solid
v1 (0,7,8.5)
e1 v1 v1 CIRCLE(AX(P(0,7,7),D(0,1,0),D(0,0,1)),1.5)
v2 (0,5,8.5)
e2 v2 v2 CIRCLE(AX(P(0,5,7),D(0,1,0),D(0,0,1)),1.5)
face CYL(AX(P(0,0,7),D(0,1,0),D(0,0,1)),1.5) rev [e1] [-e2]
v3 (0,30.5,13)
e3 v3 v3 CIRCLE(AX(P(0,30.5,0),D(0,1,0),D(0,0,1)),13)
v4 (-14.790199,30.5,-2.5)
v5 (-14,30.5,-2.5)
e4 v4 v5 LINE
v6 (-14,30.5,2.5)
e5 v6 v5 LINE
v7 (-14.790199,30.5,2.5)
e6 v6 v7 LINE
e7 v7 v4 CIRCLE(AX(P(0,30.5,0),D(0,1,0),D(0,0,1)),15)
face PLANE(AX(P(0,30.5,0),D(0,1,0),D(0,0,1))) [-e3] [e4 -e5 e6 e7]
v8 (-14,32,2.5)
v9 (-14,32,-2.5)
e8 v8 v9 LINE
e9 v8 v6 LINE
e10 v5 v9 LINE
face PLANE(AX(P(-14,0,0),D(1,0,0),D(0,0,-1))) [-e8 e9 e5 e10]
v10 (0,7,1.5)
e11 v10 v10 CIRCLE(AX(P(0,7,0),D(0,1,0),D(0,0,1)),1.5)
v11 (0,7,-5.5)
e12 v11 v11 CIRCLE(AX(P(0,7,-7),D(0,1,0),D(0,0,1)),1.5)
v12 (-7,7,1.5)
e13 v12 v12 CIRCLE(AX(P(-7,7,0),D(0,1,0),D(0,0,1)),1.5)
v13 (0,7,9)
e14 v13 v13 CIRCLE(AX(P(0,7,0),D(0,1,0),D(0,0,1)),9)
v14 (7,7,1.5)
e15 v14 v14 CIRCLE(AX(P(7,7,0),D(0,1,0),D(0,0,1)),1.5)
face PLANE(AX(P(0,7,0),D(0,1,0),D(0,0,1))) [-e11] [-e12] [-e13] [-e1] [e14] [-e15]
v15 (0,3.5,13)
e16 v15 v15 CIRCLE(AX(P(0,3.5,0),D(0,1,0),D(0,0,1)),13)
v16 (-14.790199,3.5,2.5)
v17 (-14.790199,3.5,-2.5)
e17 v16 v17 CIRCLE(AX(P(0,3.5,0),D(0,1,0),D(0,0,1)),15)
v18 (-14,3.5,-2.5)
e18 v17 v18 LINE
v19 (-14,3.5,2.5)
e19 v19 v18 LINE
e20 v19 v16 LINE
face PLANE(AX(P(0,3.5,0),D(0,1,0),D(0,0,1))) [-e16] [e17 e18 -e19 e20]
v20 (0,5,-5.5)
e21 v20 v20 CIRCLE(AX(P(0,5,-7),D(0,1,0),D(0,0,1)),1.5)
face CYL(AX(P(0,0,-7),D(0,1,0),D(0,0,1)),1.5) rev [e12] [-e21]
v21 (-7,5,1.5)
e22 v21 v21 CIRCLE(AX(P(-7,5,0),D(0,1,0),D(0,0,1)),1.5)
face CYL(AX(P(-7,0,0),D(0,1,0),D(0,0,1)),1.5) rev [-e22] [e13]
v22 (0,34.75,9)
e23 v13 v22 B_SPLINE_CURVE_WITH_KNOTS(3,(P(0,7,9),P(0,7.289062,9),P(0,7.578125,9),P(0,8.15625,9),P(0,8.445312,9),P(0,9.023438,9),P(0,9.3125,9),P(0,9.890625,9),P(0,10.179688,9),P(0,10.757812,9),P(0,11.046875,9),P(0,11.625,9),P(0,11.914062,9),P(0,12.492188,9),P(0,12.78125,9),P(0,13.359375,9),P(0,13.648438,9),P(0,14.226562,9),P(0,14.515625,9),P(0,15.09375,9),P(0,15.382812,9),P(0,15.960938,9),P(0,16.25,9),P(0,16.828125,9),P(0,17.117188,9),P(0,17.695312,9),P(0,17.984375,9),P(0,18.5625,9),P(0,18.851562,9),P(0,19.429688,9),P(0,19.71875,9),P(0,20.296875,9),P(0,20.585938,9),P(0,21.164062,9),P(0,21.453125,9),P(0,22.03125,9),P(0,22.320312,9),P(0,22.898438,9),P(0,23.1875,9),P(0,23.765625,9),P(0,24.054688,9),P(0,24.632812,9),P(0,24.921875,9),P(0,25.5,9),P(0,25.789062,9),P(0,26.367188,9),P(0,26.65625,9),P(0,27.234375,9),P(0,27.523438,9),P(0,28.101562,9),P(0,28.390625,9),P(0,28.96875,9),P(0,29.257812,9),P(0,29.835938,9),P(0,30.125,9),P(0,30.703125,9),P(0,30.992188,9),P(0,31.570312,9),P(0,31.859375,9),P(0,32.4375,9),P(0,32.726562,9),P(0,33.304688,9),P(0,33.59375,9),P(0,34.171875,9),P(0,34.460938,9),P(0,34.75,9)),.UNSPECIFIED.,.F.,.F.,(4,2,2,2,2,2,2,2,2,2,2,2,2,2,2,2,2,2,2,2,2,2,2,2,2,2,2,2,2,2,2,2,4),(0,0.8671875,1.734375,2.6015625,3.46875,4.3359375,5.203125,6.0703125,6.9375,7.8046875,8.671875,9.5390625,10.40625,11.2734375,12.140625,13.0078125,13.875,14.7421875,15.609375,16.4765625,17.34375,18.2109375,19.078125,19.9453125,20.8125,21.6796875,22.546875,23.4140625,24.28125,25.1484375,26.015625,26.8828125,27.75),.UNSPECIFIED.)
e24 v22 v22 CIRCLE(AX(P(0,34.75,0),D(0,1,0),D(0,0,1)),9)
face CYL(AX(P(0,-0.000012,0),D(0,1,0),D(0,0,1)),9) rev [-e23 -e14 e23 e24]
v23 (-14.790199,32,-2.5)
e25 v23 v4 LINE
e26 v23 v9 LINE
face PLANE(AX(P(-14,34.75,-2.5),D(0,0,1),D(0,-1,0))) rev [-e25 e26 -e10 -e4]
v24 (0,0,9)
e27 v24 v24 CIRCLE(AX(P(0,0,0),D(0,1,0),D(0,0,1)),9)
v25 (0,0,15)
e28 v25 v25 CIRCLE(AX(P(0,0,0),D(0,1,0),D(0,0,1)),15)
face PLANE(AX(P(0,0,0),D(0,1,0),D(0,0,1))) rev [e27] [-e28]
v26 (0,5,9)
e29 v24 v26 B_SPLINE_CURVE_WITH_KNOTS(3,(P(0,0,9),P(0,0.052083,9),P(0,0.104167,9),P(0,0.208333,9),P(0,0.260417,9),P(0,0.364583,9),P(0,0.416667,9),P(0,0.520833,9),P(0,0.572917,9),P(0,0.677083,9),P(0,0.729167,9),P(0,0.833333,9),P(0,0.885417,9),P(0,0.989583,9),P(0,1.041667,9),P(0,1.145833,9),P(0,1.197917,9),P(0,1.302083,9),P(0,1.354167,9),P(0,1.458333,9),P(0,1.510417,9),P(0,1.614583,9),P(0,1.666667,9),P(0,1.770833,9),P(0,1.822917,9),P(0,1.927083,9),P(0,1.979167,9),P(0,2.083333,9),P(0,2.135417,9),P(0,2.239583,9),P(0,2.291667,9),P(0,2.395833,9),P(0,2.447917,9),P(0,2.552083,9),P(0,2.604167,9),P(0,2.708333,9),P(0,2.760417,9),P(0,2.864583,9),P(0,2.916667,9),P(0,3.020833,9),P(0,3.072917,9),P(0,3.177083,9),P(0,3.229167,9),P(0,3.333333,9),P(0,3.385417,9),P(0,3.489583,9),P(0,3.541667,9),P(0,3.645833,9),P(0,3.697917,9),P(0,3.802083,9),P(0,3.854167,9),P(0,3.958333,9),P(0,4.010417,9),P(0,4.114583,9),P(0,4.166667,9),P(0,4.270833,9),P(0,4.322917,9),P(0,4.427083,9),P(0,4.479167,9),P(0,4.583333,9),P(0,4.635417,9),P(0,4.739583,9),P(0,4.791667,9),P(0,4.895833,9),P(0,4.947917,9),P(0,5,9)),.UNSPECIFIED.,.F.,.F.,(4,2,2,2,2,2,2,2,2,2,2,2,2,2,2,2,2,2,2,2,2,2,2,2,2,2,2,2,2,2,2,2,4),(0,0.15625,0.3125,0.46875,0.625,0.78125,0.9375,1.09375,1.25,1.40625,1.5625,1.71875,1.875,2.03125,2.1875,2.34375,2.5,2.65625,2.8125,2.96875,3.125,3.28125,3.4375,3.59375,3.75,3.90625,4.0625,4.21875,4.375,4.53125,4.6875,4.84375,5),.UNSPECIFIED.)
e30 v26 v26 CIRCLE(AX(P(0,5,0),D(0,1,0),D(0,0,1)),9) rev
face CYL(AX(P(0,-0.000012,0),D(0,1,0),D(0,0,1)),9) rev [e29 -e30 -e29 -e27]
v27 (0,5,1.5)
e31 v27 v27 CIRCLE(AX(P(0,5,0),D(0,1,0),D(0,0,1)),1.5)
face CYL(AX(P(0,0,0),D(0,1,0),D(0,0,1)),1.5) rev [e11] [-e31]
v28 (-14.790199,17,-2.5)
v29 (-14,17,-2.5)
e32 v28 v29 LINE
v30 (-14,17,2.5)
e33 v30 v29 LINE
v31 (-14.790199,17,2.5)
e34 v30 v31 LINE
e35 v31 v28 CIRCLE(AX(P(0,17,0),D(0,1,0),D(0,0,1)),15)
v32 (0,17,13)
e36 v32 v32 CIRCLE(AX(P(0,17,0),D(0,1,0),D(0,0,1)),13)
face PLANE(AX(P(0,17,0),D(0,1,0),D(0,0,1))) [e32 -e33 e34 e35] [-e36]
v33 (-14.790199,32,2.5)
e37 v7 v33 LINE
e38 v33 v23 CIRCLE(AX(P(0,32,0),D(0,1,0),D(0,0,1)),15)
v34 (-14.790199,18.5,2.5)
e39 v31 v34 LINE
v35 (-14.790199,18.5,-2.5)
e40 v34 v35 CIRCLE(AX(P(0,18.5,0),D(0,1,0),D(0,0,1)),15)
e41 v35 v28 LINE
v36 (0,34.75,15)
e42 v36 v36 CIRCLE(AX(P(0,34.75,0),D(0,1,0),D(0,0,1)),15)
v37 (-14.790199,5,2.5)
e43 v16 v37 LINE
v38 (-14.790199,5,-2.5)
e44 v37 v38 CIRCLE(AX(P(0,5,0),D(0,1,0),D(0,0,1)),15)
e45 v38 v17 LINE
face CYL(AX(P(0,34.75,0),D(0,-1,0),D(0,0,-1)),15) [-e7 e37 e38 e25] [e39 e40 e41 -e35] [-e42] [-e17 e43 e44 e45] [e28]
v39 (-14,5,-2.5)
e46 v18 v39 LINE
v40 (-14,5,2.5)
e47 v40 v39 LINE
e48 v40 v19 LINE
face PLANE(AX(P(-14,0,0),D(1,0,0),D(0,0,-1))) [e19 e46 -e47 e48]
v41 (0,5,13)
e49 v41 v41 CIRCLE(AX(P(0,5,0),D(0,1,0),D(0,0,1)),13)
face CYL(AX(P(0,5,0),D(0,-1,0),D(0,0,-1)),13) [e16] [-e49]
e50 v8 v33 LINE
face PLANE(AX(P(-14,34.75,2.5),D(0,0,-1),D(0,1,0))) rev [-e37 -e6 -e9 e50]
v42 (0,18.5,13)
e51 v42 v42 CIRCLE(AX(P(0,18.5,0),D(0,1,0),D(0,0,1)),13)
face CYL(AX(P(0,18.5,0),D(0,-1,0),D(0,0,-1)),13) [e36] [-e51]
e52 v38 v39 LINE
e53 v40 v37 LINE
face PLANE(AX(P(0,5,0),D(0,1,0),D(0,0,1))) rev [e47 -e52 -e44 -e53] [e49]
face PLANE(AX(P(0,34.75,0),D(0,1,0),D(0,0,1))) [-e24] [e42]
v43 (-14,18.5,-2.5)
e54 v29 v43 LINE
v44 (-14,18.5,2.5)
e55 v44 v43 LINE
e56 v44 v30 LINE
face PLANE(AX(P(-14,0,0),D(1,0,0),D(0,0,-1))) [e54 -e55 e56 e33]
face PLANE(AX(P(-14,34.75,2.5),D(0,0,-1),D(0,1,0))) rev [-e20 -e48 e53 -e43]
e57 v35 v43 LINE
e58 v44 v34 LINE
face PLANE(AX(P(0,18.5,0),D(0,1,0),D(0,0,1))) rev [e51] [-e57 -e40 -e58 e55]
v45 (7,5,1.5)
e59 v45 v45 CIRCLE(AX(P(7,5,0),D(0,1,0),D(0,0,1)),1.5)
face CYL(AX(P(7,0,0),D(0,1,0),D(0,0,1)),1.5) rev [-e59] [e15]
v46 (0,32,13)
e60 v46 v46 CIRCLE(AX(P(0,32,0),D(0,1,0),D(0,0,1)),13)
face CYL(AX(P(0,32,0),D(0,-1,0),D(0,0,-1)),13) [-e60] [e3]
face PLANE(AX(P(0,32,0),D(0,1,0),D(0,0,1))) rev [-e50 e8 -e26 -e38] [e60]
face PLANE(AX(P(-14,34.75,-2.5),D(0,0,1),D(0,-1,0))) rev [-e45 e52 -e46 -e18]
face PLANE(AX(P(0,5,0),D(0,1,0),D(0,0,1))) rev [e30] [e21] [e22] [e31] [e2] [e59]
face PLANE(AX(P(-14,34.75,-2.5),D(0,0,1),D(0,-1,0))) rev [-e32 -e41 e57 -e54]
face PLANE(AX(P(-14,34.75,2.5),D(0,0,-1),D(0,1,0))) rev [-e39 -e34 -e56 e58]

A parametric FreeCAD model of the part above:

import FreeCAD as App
import Part
import Sketcher
from FreeCAD import Vector
Q = App.Units.Quantity


def add_polygon(sketch, points):
    """Adds a closed chain of lines whose ends are joined by coincident constraints."""
    first, n = sketch.GeometryCount, len(points)
    for a, b in zip(points, points[1:] + points[:1]):
        sketch.addGeometry(Part.LineSegment(App.Vector(*a, 0), App.Vector(*b, 0)), False)
    for i in range(n):
        sketch.addConstraint(Sketcher.Constraint("Coincident", first + i, 2, first + (i + 1) % n, 1))

doc = App.newDocument("Part")
params = doc.addObject("Spreadsheet::Sheet", "Params")
for row, (alias, value) in enumerate([
    ("sketch1_diameter", "30 mm"),
    ("pad1_length", "3.5 mm"),
    ("sketch2_diameter", "26 mm"),
    ("pad2_length", "1.5 mm"),
    ("sketch3_diameter", "30 mm"),
    ("pad3_length", "12 mm"),
    ("sketch4_diameter", "26 mm"),
    ("pad4_length", "1.5 mm"),
    ("sketch5_diameter", "30 mm"),
    ("pad5_length", "12 mm"),
    ("sketch6_diameter", "26 mm"),
    ("pad6_length", "1.5 mm"),
    ("sketch7_diameter", "30 mm"),
    ("pad7_length", "2.75 mm"),
    ("sketch8_diameter", "18 mm"),
    ("sketch9_diameter", "18 mm"),
    ("pad8_length", "2 mm"),
    ("sketch10_diameter", "3 mm"),
    ("sketch11_height", "5 mm"),
    ("sketch11_width", "34.75 mm"),
    ("pad9_length", "1 mm"),
    ("sketch12_diameter", "30 mm"),
], start=1):
    params.set(f"A{row}", alias)
    params.set(f"B{row}", "=" + value)
    params.setAlias(f"B{row}", alias)

body = doc.addObject("PartDesign::Body", "Body")

sketch1 = doc.addObject("Sketcher::SketchObject", "Sketch")
body.addObject(sketch1)
sketch1.AttachmentSupport = (doc.XZ_Plane, [""])
sketch1.MapMode = "FlatFace"
sketch1.addGeometry(Part.Circle(Vector(0, 0, 0), Vector(0, 0, 1), 15), False)
sketch1.addConstraint([
    Sketcher.Constraint("Coincident", 0, 3, -1, 1),
    Sketcher.Constraint("Diameter", 0, Q("30 mm")),
])
sketch1.setExpression("Constraints[1]", "Params.sketch1_diameter")
pad1 = doc.addObject("PartDesign::Pad", "Pad")
body.addObject(pad1)
pad1.Profile = sketch1
pad1.setExpression("Length", "Params.pad1_length")
pad1.Reversed = True

sketch2 = doc.addObject("Sketcher::SketchObject", "Sketch001")
body.addObject(sketch2)
sketch2.AttachmentSupport = (doc.XZ_Plane, [""])
sketch2.MapMode = "FlatFace"
sketch2.AttachmentOffset = App.Placement(Vector(0, 0, -3.5), App.Rotation())
sketch2.addGeometry(Part.Circle(Vector(0, 0, 0), Vector(0, 0, 1), 13), False)
sketch2.addConstraint([
    Sketcher.Constraint("Coincident", 0, 3, -1, 1),
    Sketcher.Constraint("Diameter", 0, Q("26 mm")),
])
sketch2.setExpression("Constraints[1]", "Params.sketch2_diameter")
pad2 = doc.addObject("PartDesign::Pad", "Pad001")
body.addObject(pad2)
pad2.Profile = sketch2
pad2.setExpression("Length", "Params.pad2_length")
pad2.Reversed = True

sketch3 = doc.addObject("Sketcher::SketchObject", "Sketch002")
body.addObject(sketch3)
sketch3.AttachmentSupport = (doc.XZ_Plane, [""])
sketch3.MapMode = "FlatFace"
sketch3.AttachmentOffset = App.Placement(Vector(0, 0, -5), App.Rotation())
sketch3.addGeometry(Part.Circle(Vector(0, 0, 0), Vector(0, 0, 1), 15), False)
sketch3.addConstraint([
    Sketcher.Constraint("Coincident", 0, 3, -1, 1),
    Sketcher.Constraint("Diameter", 0, Q("30 mm")),
])
sketch3.setExpression("Constraints[1]", "Params.sketch3_diameter")
pad3 = doc.addObject("PartDesign::Pad", "Pad002")
body.addObject(pad3)
pad3.Profile = sketch3
pad3.setExpression("Length", "Params.pad3_length")
pad3.Reversed = True

sketch4 = doc.addObject("Sketcher::SketchObject", "Sketch003")
body.addObject(sketch4)
sketch4.AttachmentSupport = (doc.XZ_Plane, [""])
sketch4.MapMode = "FlatFace"
sketch4.AttachmentOffset = App.Placement(Vector(0, 0, -17), App.Rotation())
sketch4.addGeometry(Part.Circle(Vector(0, 0, 0), Vector(0, 0, 1), 13), False)
sketch4.addConstraint([
    Sketcher.Constraint("Coincident", 0, 3, -1, 1),
    Sketcher.Constraint("Diameter", 0, Q("26 mm")),
])
sketch4.setExpression("Constraints[1]", "Params.sketch4_diameter")
pad4 = doc.addObject("PartDesign::Pad", "Pad003")
body.addObject(pad4)
pad4.Profile = sketch4
pad4.setExpression("Length", "Params.pad4_length")
pad4.Reversed = True

sketch5 = doc.addObject("Sketcher::SketchObject", "Sketch004")
body.addObject(sketch5)
sketch5.AttachmentSupport = (doc.XZ_Plane, [""])
sketch5.MapMode = "FlatFace"
sketch5.AttachmentOffset = App.Placement(Vector(0, 0, -18.5), App.Rotation())
sketch5.addGeometry(Part.Circle(Vector(0, 0, 0), Vector(0, 0, 1), 15), False)
sketch5.addConstraint([
    Sketcher.Constraint("Coincident", 0, 3, -1, 1),
    Sketcher.Constraint("Diameter", 0, Q("30 mm")),
])
sketch5.setExpression("Constraints[1]", "Params.sketch5_diameter")
pad5 = doc.addObject("PartDesign::Pad", "Pad004")
body.addObject(pad5)
pad5.Profile = sketch5
pad5.setExpression("Length", "Params.pad5_length")
pad5.Reversed = True

sketch6 = doc.addObject("Sketcher::SketchObject", "Sketch005")
body.addObject(sketch6)
sketch6.AttachmentSupport = (doc.XZ_Plane, [""])
sketch6.MapMode = "FlatFace"
sketch6.AttachmentOffset = App.Placement(Vector(0, 0, -30.5), App.Rotation())
sketch6.addGeometry(Part.Circle(Vector(0, 0, 0), Vector(0, 0, 1), 13), False)
sketch6.addConstraint([
    Sketcher.Constraint("Coincident", 0, 3, -1, 1),
    Sketcher.Constraint("Diameter", 0, Q("26 mm")),
])
sketch6.setExpression("Constraints[1]", "Params.sketch6_diameter")
pad6 = doc.addObject("PartDesign::Pad", "Pad005")
body.addObject(pad6)
pad6.Profile = sketch6
pad6.setExpression("Length", "Params.pad6_length")
pad6.Reversed = True

sketch7 = doc.addObject("Sketcher::SketchObject", "Sketch006")
body.addObject(sketch7)
sketch7.AttachmentSupport = (doc.XZ_Plane, [""])
sketch7.MapMode = "FlatFace"
sketch7.AttachmentOffset = App.Placement(Vector(0, 0, -32), App.Rotation())
sketch7.addGeometry(Part.Circle(Vector(0, 0, 0), Vector(0, 0, 1), 15), False)
sketch7.addConstraint([
    Sketcher.Constraint("Coincident", 0, 3, -1, 1),
    Sketcher.Constraint("Diameter", 0, Q("30 mm")),
])
sketch7.setExpression("Constraints[1]", "Params.sketch7_diameter")
pad7 = doc.addObject("PartDesign::Pad", "Pad006")
body.addObject(pad7)
pad7.Profile = sketch7
pad7.setExpression("Length", "Params.pad7_length")
pad7.Reversed = True

sketch8 = doc.addObject("Sketcher::SketchObject", "Sketch007")
body.addObject(sketch8)
sketch8.AttachmentSupport = (doc.XZ_Plane, [""])
sketch8.MapMode = "FlatFace"
sketch8.addGeometry(Part.Circle(Vector(0, 0, 0), Vector(0, 0, 1), 9), False)
sketch8.addConstraint([
    Sketcher.Constraint("Coincident", 0, 3, -1, 1),
    Sketcher.Constraint("Diameter", 0, Q("18 mm")),
])
sketch8.setExpression("Constraints[1]", "Params.sketch8_diameter")
pocket1 = doc.addObject("PartDesign::Pocket", "Pocket")
body.addObject(pocket1)
pocket1.Profile = sketch8
pocket1.Type = "ThroughAll"
pocket1.Midplane = True

sketch9 = doc.addObject("Sketcher::SketchObject", "Sketch008")
body.addObject(sketch9)
sketch9.AttachmentSupport = (doc.XZ_Plane, [""])
sketch9.MapMode = "FlatFace"
sketch9.AttachmentOffset = App.Placement(Vector(0, 0, -5), App.Rotation())
sketch9.addGeometry(Part.Circle(Vector(0, 0, 0), Vector(0, 0, 1), 9), False)
sketch9.addConstraint([
    Sketcher.Constraint("Coincident", 0, 3, -1, 1),
    Sketcher.Constraint("Diameter", 0, Q("18 mm")),
])
sketch9.setExpression("Constraints[1]", "Params.sketch9_diameter")
pad8 = doc.addObject("PartDesign::Pad", "Pad007")
body.addObject(pad8)
pad8.Profile = sketch9
pad8.setExpression("Length", "Params.pad8_length")
pad8.Reversed = True

sketch10 = doc.addObject("Sketcher::SketchObject", "Sketch009")
body.addObject(sketch10)
sketch10.AttachmentSupport = (doc.XZ_Plane, [""])
sketch10.MapMode = "FlatFace"
sketch10.AttachmentOffset = App.Placement(Vector(0, 0, -5), App.Rotation())
sketch10.addGeometry([
    Part.Circle(Vector(0, 0, 0), Vector(0, 0, 1), 1.5),
    Part.Circle(Vector(0, -7, 0), Vector(0, 0, 1), 1.5),
    Part.Circle(Vector(0, 7, 0), Vector(0, 0, 1), 1.5),
    Part.Circle(Vector(7, 0, 0), Vector(0, 0, 1), 1.5),
    Part.Circle(Vector(-7, 0, 0), Vector(0, 0, 1), 1.5),
], False)
sketch10.addConstraint([
    Sketcher.Constraint("Coincident", 0, 3, -1, 1),
    Sketcher.Constraint("Equal", 0, 1),
    Sketcher.Constraint("Equal", 1, 2),
    Sketcher.Constraint("Equal", 2, 3),
    Sketcher.Constraint("Equal", 3, 4),
    Sketcher.Constraint("Symmetric", 1, 3, 2, 3, -1, 1),
    Sketcher.Constraint("Symmetric", 3, 3, 4, 3, -1, 1),
    Sketcher.Constraint("PointOnObject", 1, 3, -2),
    Sketcher.Constraint("PointOnObject", 3, 3, -1),
    Sketcher.Constraint("Diameter", 0, Q("3 mm")),
    Sketcher.Constraint("DistanceY", 1, 3, -1, 1, Q("7 mm")),
    Sketcher.Constraint("DistanceX", -1, 1, 3, 3, Q("7 mm")),
])
sketch10.setExpression("Constraints[9]", "Params.sketch10_diameter")
pocket2 = doc.addObject("PartDesign::Pocket", "Pocket001")
body.addObject(pocket2)
pocket2.Profile = sketch10
pocket2.Type = "ThroughAll"
pocket2.Midplane = True

sketch11 = doc.addObject("Sketcher::SketchObject", "Sketch010")
body.addObject(sketch11)
sketch11.AttachmentSupport = (doc.YZ_Plane, [""])
sketch11.MapMode = "FlatFace"
sketch11.AttachmentOffset = App.Placement(Vector(0, 0, -15), App.Rotation())
add_polygon(sketch11, [(35, 2), (0, 2), (0, -2), (35, -2)])
sketch11.addConstraint([
    Sketcher.Constraint("Horizontal", 0),
    Sketcher.Constraint("Vertical", 1),
    Sketcher.Constraint("Horizontal", 2),
    Sketcher.Constraint("Vertical", 3),
    Sketcher.Constraint("Symmetric", 0, 2, 1, 2, -1, 1),
    Sketcher.Constraint("DistanceY", 1, 2, 1, 1, Q("5 mm")),
    Sketcher.Constraint("DistanceX", 0, 2, 0, 1, Q("34.75 mm")),
])
sketch11.setExpression("Constraints[9]", "Params.sketch11_height")
sketch11.setExpression("Constraints[10]", "Params.sketch11_width")
pad9 = doc.addObject("PartDesign::Pad", "Pad008")
body.addObject(pad9)
pad9.Profile = sketch11
pad9.setExpression("Length", "Params.pad9_length")

sketch12 = doc.addObject("Sketcher::SketchObject", "Sketch011")
body.addObject(sketch12)
sketch12.AttachmentSupport = (doc.XZ_Plane, [""])
sketch12.MapMode = "FlatFace"
sketch12.AttachmentOffset = App.Placement(Vector(0, 0, -34.75), App.Rotation())
sketch12.addGeometry([
    Part.Circle(Vector(0, 0, 0), Vector(0, 0, 1), 15),
    Part.Circle(Vector(0, 0, 0), Vector(0, 0, 1), 15),
], False)
sketch12.addConstraint([
    Sketcher.Constraint("Coincident", 0, 3, -1, 1),
    Sketcher.Constraint("Coincident", 1, 3, -1, 1),
    Sketcher.Constraint("Diameter", 1, Q("30 mm")),
    Sketcher.Constraint("Diameter", 0, Q("30.817328 mm")),
])
sketch12.setExpression("Constraints[2]", "Params.sketch12_diameter")
pocket3 = doc.addObject("PartDesign::Pocket", "Pocket002")
body.addObject(pocket3)
pocket3.Profile = sketch12
pocket3.Type = "ThroughAll"
pocket3.Midplane = True

doc.recompute()
